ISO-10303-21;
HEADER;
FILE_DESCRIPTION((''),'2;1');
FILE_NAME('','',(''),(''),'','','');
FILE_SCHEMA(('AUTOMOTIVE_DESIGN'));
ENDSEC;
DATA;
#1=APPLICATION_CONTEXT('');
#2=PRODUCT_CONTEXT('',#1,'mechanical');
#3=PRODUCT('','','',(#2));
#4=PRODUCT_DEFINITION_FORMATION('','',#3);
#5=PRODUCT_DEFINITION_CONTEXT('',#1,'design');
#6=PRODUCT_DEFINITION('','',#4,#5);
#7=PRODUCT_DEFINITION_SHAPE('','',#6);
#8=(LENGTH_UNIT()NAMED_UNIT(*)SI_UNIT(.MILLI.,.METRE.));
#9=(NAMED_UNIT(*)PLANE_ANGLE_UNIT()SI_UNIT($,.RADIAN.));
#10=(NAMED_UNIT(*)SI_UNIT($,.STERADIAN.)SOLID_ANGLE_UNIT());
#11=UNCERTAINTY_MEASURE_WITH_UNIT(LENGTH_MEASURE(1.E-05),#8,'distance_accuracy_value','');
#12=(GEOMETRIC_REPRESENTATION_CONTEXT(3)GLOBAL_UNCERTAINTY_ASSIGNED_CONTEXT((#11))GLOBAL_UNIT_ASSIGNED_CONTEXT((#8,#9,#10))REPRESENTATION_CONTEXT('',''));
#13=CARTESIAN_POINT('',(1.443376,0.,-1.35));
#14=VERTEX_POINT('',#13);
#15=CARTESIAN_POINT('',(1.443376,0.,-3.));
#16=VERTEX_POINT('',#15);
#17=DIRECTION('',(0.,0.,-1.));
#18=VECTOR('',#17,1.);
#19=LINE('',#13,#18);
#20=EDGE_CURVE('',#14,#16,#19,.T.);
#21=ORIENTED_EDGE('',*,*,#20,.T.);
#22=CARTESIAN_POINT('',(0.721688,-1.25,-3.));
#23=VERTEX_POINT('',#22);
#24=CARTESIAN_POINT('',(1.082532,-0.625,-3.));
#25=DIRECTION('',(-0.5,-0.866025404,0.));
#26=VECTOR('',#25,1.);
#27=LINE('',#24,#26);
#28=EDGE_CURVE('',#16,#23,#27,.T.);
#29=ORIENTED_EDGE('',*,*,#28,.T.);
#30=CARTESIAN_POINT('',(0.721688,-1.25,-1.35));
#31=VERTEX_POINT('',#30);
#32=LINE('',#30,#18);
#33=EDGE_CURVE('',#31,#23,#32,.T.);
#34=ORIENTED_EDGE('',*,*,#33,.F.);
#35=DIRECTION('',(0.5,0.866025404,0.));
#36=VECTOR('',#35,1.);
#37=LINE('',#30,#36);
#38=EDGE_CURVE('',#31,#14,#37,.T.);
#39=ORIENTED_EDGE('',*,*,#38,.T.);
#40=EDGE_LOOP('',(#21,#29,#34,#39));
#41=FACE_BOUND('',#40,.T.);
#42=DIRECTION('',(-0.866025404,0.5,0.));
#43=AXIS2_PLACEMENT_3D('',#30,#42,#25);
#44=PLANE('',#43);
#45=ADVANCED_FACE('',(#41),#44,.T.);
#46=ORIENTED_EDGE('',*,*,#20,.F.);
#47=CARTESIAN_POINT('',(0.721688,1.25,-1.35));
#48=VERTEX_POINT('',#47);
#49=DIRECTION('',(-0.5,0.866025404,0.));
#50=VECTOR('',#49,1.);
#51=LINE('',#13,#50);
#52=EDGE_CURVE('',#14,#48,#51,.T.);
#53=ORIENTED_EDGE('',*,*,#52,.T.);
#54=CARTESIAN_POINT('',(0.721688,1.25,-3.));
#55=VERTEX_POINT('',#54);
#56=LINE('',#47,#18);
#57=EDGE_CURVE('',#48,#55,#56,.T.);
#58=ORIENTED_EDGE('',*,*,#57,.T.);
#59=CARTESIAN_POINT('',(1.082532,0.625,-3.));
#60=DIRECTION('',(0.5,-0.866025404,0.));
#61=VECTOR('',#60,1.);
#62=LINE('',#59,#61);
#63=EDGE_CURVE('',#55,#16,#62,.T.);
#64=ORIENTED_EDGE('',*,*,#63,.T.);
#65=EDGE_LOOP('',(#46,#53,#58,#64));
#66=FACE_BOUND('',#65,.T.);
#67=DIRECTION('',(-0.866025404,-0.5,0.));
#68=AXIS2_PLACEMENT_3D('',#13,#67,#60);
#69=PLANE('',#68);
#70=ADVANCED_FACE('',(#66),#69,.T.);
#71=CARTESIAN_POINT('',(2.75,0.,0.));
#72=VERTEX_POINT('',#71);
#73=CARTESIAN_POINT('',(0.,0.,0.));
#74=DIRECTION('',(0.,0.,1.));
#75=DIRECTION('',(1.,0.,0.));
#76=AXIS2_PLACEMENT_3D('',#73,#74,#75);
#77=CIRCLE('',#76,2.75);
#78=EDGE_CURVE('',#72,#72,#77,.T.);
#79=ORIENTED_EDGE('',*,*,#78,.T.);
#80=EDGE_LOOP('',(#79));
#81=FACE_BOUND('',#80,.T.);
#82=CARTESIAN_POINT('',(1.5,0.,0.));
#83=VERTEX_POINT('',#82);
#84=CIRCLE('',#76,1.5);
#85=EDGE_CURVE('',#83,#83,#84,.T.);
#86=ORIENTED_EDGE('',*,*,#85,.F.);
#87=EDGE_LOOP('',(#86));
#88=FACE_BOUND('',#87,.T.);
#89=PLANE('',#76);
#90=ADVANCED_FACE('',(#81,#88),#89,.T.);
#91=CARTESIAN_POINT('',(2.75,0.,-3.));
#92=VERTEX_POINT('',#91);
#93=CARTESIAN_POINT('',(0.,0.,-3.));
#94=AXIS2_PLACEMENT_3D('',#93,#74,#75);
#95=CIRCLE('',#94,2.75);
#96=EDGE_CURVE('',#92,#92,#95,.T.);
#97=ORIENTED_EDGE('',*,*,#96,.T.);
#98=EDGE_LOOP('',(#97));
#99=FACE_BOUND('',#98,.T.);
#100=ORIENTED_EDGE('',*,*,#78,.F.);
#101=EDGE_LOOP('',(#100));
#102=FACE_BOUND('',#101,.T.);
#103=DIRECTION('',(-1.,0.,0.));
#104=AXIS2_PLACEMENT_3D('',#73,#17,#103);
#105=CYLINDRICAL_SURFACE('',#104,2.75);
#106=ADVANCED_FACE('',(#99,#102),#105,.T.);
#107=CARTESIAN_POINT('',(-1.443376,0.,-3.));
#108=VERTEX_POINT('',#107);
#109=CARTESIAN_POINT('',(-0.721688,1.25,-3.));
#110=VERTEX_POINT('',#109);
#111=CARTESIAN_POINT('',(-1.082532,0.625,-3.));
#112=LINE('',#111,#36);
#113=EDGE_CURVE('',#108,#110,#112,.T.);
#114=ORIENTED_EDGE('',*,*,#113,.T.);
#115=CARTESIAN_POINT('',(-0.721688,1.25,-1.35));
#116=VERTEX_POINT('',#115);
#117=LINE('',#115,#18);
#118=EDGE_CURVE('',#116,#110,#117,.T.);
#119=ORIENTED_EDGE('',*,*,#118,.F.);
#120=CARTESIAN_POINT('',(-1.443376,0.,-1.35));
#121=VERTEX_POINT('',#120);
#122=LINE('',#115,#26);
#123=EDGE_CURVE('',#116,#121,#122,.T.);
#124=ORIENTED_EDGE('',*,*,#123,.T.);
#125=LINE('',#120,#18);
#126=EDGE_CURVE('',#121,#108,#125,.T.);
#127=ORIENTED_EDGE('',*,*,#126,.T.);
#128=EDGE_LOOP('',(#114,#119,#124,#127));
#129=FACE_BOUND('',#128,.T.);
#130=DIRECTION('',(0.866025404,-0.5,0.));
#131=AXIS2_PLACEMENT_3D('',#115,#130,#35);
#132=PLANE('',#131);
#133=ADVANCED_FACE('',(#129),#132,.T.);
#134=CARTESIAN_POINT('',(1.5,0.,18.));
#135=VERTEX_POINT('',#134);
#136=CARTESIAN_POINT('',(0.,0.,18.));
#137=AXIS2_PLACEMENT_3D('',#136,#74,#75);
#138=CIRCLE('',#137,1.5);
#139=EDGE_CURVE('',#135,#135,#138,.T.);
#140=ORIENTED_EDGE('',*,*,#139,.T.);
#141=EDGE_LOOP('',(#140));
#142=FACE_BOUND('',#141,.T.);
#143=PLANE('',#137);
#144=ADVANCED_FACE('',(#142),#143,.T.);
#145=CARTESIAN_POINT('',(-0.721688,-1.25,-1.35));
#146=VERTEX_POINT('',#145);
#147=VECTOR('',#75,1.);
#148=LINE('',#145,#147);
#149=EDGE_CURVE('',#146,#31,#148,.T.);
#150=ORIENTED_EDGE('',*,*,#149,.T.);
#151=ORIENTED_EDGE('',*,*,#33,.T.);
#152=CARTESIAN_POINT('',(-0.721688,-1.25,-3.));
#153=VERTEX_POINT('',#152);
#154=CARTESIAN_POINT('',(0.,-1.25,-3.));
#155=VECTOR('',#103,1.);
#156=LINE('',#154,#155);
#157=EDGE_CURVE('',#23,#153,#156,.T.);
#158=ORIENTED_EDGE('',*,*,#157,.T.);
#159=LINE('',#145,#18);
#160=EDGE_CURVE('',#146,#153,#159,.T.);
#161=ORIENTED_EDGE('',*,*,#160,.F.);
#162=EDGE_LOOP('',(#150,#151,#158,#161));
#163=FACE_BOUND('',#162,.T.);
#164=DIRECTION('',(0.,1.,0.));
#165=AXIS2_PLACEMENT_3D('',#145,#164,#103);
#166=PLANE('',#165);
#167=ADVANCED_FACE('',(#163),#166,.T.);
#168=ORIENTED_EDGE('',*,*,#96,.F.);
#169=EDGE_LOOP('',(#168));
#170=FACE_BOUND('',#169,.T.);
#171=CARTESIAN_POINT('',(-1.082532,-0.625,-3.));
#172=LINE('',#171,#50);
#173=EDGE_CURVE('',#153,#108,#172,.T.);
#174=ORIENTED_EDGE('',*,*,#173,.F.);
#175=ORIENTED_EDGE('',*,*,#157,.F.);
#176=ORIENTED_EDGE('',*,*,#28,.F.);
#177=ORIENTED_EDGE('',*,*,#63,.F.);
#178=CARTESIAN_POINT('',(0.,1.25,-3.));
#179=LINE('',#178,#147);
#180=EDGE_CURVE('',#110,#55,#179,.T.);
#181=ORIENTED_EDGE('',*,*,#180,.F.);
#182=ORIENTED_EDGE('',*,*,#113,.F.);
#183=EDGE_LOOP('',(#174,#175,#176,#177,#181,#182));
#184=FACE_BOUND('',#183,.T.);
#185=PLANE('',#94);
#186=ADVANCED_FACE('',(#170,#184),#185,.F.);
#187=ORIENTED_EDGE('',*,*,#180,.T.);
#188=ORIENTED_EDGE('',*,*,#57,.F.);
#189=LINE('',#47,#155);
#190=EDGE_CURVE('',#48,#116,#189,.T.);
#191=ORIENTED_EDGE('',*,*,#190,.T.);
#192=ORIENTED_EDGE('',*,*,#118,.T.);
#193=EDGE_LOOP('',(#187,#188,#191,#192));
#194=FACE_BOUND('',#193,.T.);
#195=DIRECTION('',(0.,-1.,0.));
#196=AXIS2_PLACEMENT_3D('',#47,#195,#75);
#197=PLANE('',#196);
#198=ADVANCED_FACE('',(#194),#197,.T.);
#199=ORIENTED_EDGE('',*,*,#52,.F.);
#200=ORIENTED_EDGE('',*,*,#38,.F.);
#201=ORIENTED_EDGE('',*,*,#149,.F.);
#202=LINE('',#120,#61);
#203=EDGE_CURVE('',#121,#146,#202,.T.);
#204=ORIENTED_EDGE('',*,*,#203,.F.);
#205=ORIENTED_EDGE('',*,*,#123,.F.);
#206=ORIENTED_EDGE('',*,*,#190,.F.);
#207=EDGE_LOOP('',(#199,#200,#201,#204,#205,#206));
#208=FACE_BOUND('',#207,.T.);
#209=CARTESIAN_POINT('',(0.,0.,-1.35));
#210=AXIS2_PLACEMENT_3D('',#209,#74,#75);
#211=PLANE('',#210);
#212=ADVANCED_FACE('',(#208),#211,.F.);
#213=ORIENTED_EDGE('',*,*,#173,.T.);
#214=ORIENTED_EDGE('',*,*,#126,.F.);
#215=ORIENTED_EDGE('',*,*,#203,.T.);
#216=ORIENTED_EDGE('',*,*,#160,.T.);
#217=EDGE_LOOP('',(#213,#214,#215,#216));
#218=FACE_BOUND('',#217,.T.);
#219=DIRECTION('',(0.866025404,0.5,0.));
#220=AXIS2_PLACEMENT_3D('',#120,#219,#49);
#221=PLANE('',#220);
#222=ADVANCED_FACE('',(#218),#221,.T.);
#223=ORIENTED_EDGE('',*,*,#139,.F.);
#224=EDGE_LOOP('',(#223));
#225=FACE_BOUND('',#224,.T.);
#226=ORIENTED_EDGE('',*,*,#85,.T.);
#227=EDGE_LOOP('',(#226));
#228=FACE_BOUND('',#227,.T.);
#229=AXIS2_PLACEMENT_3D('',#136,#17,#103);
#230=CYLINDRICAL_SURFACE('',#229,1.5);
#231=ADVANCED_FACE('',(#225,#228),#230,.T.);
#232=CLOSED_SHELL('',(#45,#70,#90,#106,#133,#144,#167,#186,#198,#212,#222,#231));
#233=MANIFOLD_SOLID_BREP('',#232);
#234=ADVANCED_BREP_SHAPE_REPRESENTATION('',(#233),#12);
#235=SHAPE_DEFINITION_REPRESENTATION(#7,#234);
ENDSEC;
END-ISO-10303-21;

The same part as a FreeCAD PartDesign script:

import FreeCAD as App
import Part
import Sketcher

V = App.Vector
Q = App.Units.Quantity

doc = App.newDocument("Part")
body = doc.addObject("PartDesign::Body", "Body")

sketch1 = body.newObject("Sketcher::SketchObject", "Sketch")
sketch1.AttachmentSupport = (doc.getObject("XY_Plane"), [""])
sketch1.MapMode = "FlatFace"
sketch1.AttachmentOffset = App.Placement(V(0, 0, -3), App.Rotation())
sketch1.addGeometry(Part.Circle(V(0, 0, 0), V(0, 0, 1), 2.8), False)
sketch1.addConstraint([
    Sketcher.Constraint("Coincident", 0, 3, -1, 1),
    Sketcher.Constraint("Diameter", 0, Q("5.5 mm")),
])
pad1 = body.newObject("PartDesign::Pad", "Pad")
pad1.Profile = sketch1
pad1.Length = 3

sketch2 = body.newObject("Sketcher::SketchObject", "Sketch001")
sketch2.AttachmentSupport = (doc.getObject("XY_Plane"), [""])
sketch2.MapMode = "FlatFace"
sketch2.addGeometry(Part.Circle(V(0, 0, 0), V(0, 0, 1), 1.5), False)
sketch2.addConstraint([
    Sketcher.Constraint("Coincident", 0, 3, -1, 1),
    Sketcher.Constraint("Diameter", 0, Q("3 mm")),
])
pad2 = body.newObject("PartDesign::Pad", "Pad001")
pad2.Profile = sketch2
pad2.Length = 18

sketch3 = body.newObject("Sketcher::SketchObject", "Sketch002")
sketch3.AttachmentSupport = (doc.getObject("XY_Plane"), [""])
sketch3.MapMode = "FlatFace"
sketch3.AttachmentOffset = App.Placement(V(0, 0, -3.1), App.Rotation())
sketch3.addGeometry([
    Part.LineSegment(V(1.4, 0, 0), V(0.7, 1.2, 0)),
    Part.LineSegment(V(0.7, 1.2, 0), V(-0.7, 1.2, 0)),
    Part.LineSegment(V(-0.7, 1.2, 0), V(-1.4, 0, 0)),
    Part.LineSegment(V(-1.4, 0, 0), V(-0.7, -1.2, 0)),
    Part.LineSegment(V(-0.7, -1.2, 0), V(0.7, -1.2, 0)),
    Part.LineSegment(V(0.7, -1.2, 0), V(1.4, 0, 0)),
], False)
sketch3.addConstraint([
    Sketcher.Constraint("Coincident", 0, 2, 1, 1),
    Sketcher.Constraint("Coincident", 1, 2, 2, 1),
    Sketcher.Constraint("Coincident", 2, 2, 3, 1),
    Sketcher.Constraint("Coincident", 3, 2, 4, 1),
    Sketcher.Constraint("Coincident", 4, 2, 5, 1),
    Sketcher.Constraint("Coincident", 5, 2, 0, 1),
    Sketcher.Constraint("Horizontal", 1),
    Sketcher.Constraint("Horizontal", 4),
    Sketcher.Constraint("Symmetric", 0, 2, 3, 2, -1, 1),
    Sketcher.Constraint("Symmetric", 2, 2, 5, 2, -1, 1),
    Sketcher.Constraint("PointOnObject", 2, 2, -1),
    Sketcher.Constraint("Parallel", 2, 5),
    Sketcher.Constraint("Vertical", 1, 2, 3, 2),
    Sketcher.Constraint("Angle", 0, Q("120 deg")),
    Sketcher.Constraint("DistanceY", 3, 2, 1, 2, Q("2.5 mm")),
    Sketcher.Constraint("DistanceX", 1, 2, 1, 1, Q("1.443376 mm")),
])
pocket1 = body.newObject("PartDesign::Pocket", "Pocket")
pocket1.Profile = sketch3
pocket1.Length = 1.75
pocket1.Reversed = True

doc.recompute()
